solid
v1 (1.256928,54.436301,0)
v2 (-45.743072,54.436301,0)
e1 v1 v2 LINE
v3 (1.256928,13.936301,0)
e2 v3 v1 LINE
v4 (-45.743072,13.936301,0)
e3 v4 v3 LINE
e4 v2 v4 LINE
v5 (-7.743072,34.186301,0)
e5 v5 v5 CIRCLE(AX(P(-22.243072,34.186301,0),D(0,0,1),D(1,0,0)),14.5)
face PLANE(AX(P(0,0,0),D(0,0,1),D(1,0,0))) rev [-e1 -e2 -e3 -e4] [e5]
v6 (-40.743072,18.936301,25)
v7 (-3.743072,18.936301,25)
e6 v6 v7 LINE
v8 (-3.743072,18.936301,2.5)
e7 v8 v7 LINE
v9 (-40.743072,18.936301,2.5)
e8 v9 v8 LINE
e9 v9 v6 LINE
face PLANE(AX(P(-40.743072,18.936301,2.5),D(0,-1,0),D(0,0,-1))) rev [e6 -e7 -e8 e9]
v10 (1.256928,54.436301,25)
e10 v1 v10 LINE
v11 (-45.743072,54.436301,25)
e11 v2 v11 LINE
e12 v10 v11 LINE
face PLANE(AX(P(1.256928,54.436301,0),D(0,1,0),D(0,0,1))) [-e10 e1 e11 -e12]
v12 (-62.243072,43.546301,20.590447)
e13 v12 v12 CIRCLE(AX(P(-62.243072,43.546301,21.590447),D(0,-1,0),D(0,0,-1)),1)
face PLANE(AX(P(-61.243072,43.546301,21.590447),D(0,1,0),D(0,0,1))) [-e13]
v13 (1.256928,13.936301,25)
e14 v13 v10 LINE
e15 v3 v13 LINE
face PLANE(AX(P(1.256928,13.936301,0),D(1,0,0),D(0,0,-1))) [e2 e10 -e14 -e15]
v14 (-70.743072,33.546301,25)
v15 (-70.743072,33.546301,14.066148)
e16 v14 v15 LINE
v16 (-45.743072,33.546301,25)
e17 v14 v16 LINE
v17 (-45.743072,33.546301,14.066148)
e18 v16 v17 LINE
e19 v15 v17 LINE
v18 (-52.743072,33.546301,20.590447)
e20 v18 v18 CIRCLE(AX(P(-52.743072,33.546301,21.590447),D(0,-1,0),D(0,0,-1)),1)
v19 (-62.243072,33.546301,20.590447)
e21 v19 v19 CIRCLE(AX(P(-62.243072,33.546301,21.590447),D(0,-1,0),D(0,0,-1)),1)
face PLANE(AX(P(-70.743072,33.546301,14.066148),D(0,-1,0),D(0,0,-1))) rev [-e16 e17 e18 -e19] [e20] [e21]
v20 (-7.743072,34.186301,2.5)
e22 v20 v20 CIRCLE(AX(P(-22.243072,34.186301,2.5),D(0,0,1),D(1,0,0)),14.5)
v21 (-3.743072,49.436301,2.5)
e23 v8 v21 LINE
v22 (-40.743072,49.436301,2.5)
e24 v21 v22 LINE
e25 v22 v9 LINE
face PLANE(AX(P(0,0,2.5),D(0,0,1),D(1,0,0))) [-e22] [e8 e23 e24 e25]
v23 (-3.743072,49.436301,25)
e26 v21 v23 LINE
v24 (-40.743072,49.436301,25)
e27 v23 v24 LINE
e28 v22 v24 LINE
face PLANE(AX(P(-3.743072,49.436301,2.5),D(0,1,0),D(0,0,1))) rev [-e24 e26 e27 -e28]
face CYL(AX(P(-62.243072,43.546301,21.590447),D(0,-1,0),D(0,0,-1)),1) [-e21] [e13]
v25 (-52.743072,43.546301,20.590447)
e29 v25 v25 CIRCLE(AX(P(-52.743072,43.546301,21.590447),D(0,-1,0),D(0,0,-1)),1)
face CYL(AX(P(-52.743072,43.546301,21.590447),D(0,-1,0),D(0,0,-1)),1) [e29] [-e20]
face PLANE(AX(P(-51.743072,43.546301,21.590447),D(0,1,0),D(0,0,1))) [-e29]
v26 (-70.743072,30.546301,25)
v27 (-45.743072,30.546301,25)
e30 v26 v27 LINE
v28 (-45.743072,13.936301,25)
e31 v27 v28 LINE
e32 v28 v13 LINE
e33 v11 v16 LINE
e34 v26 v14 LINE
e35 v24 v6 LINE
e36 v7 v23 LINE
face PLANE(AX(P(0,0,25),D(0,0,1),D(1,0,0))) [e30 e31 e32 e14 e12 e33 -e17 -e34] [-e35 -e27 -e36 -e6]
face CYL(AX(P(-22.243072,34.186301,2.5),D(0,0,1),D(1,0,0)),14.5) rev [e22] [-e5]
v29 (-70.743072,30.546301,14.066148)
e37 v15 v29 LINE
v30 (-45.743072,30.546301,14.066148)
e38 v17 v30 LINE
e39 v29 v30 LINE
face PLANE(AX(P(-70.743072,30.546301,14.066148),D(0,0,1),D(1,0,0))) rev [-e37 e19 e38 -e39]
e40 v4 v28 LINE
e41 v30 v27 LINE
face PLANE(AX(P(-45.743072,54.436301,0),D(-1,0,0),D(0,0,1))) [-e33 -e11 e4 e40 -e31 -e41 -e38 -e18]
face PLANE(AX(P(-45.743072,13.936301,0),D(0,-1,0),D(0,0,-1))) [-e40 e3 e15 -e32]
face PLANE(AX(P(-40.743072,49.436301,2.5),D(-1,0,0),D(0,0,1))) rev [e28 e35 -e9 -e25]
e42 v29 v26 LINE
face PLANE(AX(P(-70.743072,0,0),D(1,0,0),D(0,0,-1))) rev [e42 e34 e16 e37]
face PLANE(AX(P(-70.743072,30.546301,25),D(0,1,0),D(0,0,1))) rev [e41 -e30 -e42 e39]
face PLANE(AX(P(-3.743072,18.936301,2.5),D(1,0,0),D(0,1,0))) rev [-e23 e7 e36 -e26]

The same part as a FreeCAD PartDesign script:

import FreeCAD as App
import Part
import Sketcher
from FreeCAD import Vector
Q = App.Units.Quantity

doc = App.newDocument("Part")
body = doc.addObject("PartDesign::Body", "Body")

# Sketch on XY plane
sketch1 = body.newObject("Sketcher::SketchObject", "Sketch")
sketch1.AttachmentSupport = (doc.getObject("XY_Plane"), [""])
sketch1.MapMode = "FlatFace"
sketch1.AttachmentOffset = App.Placement(Vector(0, 0, 25), App.Rotation())
sketch1.addGeometry(Part.LineSegment(Vector(-46, 54, 0), Vector(-46, 14, 0)), False)
sketch1.addGeometry(Part.LineSegment(Vector(-46, 14, 0), Vector(1, 14, 0)), False)
sketch1.addGeometry(Part.LineSegment(Vector(1, 14, 0), Vector(1, 54, 0)), False)
sketch1.addGeometry(Part.LineSegment(Vector(1, 54, 0), Vector(-46, 54, 0)), False)
sketch1.addConstraint(Sketcher.Constraint("Coincident", 0, 2, 1, 1))
sketch1.addConstraint(Sketcher.Constraint("Coincident", 1, 2, 2, 1))
sketch1.addConstraint(Sketcher.Constraint("Coincident", 2, 2, 3, 1))
sketch1.addConstraint(Sketcher.Constraint("Coincident", 3, 2, 0, 1))
sketch1.addConstraint(Sketcher.Constraint("Vertical", 0))
sketch1.addConstraint(Sketcher.Constraint("Horizontal", 1))
sketch1.addConstraint(Sketcher.Constraint("Vertical", 2))
sketch1.addConstraint(Sketcher.Constraint("Horizontal", 3))
sketch1.addConstraint(Sketcher.Constraint("DistanceX", 1, 1, 1, 2, Q("47 mm")))
sketch1.addConstraint(Sketcher.Constraint("DistanceY", 0, 2, 0, 1, Q("40.5 mm")))
sketch1.addConstraint(Sketcher.Constraint("DistanceY", -1, 1, 0, 2, Q("13.936301 mm")))
sketch1.addConstraint(Sketcher.Constraint("DistanceX", 0, 2, -1, 1, Q("45.743072 mm")))
pad1 = body.newObject("PartDesign::Pad", "Pad")
pad1.Profile = sketch1
pad1.Length = 25
pad1.Reversed = True

# Sketch on YZ plane
sketch2 = body.newObject("Sketcher::SketchObject", "Sketch001")
sketch2.AttachmentSupport = (doc.getObject("YZ_Plane"), [""])
sketch2.MapMode = "FlatFace"
sketch2.AttachmentOffset = App.Placement(Vector(0, 0, -45.743072), App.Rotation())
sketch2.addGeometry(Part.LineSegment(Vector(33.5, 14.1, 0), Vector(30.5, 14.1, 0)), False)
sketch2.addGeometry(Part.LineSegment(Vector(30.5, 14.1, 0), Vector(30.5, 25, 0)), False)
sketch2.addGeometry(Part.LineSegment(Vector(30.5, 25, 0), Vector(33.5, 25, 0)), False)
sketch2.addGeometry(Part.LineSegment(Vector(33.5, 25, 0), Vector(33.5, 14.1, 0)), False)
sketch2.addConstraint(Sketcher.Constraint("Coincident", 0, 2, 1, 1))
sketch2.addConstraint(Sketcher.Constraint("Coincident", 1, 2, 2, 1))
sketch2.addConstraint(Sketcher.Constraint("Coincident", 2, 2, 3, 1))
sketch2.addConstraint(Sketcher.Constraint("Coincident", 3, 2, 0, 1))
sketch2.addConstraint(Sketcher.Constraint("Horizontal", 0))
sketch2.addConstraint(Sketcher.Constraint("Vertical", 1))
sketch2.addConstraint(Sketcher.Constraint("Horizontal", 2))
sketch2.addConstraint(Sketcher.Constraint("Vertical", 3))
sketch2.addConstraint(Sketcher.Constraint("DistanceX", 0, 2, 0, 1, Q("3 mm")))
sketch2.addConstraint(Sketcher.Constraint("DistanceY", -1, 1, 1, 2, Q("25 mm")))
sketch2.addConstraint(Sketcher.Constraint("DistanceY", 1, 1, 1, 2, Q("10.933852 mm")))
sketch2.addConstraint(Sketcher.Constraint("DistanceX", -1, 1, 0, 2, Q("30.546301 mm")))
pad2 = body.newObject("PartDesign::Pad", "Pad001")
pad2.Profile = sketch2
pad2.Length = 25
pad2.Reversed = True

# Sketch on XY plane
sketch3 = body.newObject("Sketcher::SketchObject", "Sketch002")
sketch3.AttachmentSupport = (doc.getObject("XY_Plane"), [""])
sketch3.MapMode = "FlatFace"
sketch3.AttachmentOffset = App.Placement(Vector(0, 0, 25), App.Rotation())
sketch3.addGeometry(Part.LineSegment(Vector(-41, 49, 0), Vector(-41, 19, 0)), False)
sketch3.addGeometry(Part.LineSegment(Vector(-41, 19, 0), Vector(-4, 19, 0)), False)
sketch3.addGeometry(Part.LineSegment(Vector(-4, 19, 0), Vector(-4, 49, 0)), False)
sketch3.addGeometry(Part.LineSegment(Vector(-4, 49, 0), Vector(-41, 49, 0)), False)
sketch3.addConstraint(Sketcher.Constraint("Coincident", 0, 2, 1, 1))
sketch3.addConstraint(Sketcher.Constraint("Coincident", 1, 2, 2, 1))
sketch3.addConstraint(Sketcher.Constraint("Coincident", 2, 2, 3, 1))
sketch3.addConstraint(Sketcher.Constraint("Coincident", 3, 2, 0, 1))
sketch3.addConstraint(Sketcher.Constraint("Vertical", 0))
sketch3.addConstraint(Sketcher.Constraint("Horizontal", 1))
sketch3.addConstraint(Sketcher.Constraint("Vertical", 2))
sketch3.addConstraint(Sketcher.Constraint("Horizontal", 3))
sketch3.addConstraint(Sketcher.Constraint("DistanceX", 1, 1, 1, 2, Q("37 mm")))
sketch3.addConstraint(Sketcher.Constraint("DistanceY", 0, 2, 0, 1, Q("30.5 mm")))
sketch3.addConstraint(Sketcher.Constraint("DistanceY", -1, 1, 0, 2, Q("18.936301 mm")))
sketch3.addConstraint(Sketcher.Constraint("DistanceX", 0, 2, -1, 1, Q("40.743072 mm")))
pocket1 = body.newObject("PartDesign::Pocket", "Pocket")
pocket1.Profile = sketch3
pocket1.Length = 22.5

# Sketch on XY plane
sketch4 = body.newObject("Sketcher::SketchObject", "Sketch003")
sketch4.AttachmentSupport = (doc.getObject("XY_Plane"), [""])
sketch4.MapMode = "FlatFace"
sketch4.AttachmentOffset = App.Placement(Vector(0, 0, 21.590447), App.Rotation())
sketch4.addGeometry(Part.LineSegment(Vector(-52.7, 43.5, 0), Vector(-52.7, 33.5, 0)), False)
sketch4.addGeometry(Part.LineSegment(Vector(-52.7, 33.5, 0), Vector(-51.7, 33.5, 0)), False)
sketch4.addGeometry(Part.LineSegment(Vector(-51.7, 33.5, 0), Vector(-51.7, 43.5, 0)), False)
sketch4.addGeometry(Part.LineSegment(Vector(-51.7, 43.5, 0), Vector(-52.7, 43.5, 0)), False)
sketch4.addGeometry(Part.LineSegment(Vector(-52.7, 43.5, 0), Vector(-52.7, 33.5, 0)), True)  # axis
sketch4.addConstraint(Sketcher.Constraint("Coincident", 0, 2, 1, 1))
sketch4.addConstraint(Sketcher.Constraint("Coincident", 1, 2, 2, 1))
sketch4.addConstraint(Sketcher.Constraint("Coincident", 2, 2, 3, 1))
sketch4.addConstraint(Sketcher.Constraint("Coincident", 3, 2, 0, 1))
sketch4.addConstraint(Sketcher.Constraint("Vertical", 0))
sketch4.addConstraint(Sketcher.Constraint("Horizontal", 1))
sketch4.addConstraint(Sketcher.Constraint("Vertical", 2))
sketch4.addConstraint(Sketcher.Constraint("Horizontal", 3))
sketch4.addConstraint(Sketcher.Constraint("Vertical", 4))
sketch4.addConstraint(Sketcher.Constraint("Coincident", 4, 1, 3, 2))
sketch4.addConstraint(Sketcher.Constraint("Horizontal", 1, 2, 4, 2))
sketch4.addConstraint(Sketcher.Constraint("DistanceX", 1, 1, 1, 2, Q("1 mm")))
sketch4.addConstraint(Sketcher.Constraint("DistanceY", 0, 2, 0, 1, Q("10 mm")))
sketch4.addConstraint(Sketcher.Constraint("DistanceY", -1, 1, 0, 2, Q("33.546301 mm")))
sketch4.addConstraint(Sketcher.Constraint("DistanceX", 0, 2, -1, 1, Q("52.743072 mm")))
revolution = body.newObject("PartDesign::Revolution", "Revolution")
revolution.Profile = sketch4
revolution.ReferenceAxis = (sketch4, ["Axis0"])
revolution.Angle = 360

# Sketch on XY plane
sketch5 = body.newObject("Sketcher::SketchObject", "Sketch004")
sketch5.AttachmentSupport = (doc.getObject("XY_Plane"), [""])
sketch5.MapMode = "FlatFace"
sketch5.AttachmentOffset = App.Placement(Vector(0, 0, 21.590447), App.Rotation())
sketch5.addGeometry(Part.LineSegment(Vector(-62.2, 43.5, 0), Vector(-62.2, 33.5, 0)), False)
sketch5.addGeometry(Part.LineSegment(Vector(-62.2, 33.5, 0), Vector(-61.2, 33.5, 0)), False)
sketch5.addGeometry(Part.LineSegment(Vector(-61.2, 33.5, 0), Vector(-61.2, 43.5, 0)), False)
sketch5.addGeometry(Part.LineSegment(Vector(-61.2, 43.5, 0), Vector(-62.2, 43.5, 0)), False)
sketch5.addGeometry(Part.LineSegment(Vector(-62.2, 43.5, 0), Vector(-62.2, 33.5, 0)), True)  # axis
sketch5.addConstraint(Sketcher.Constraint("Coincident", 0, 2, 1, 1))
sketch5.addConstraint(Sketcher.Constraint("Coincident", 1, 2, 2, 1))
sketch5.addConstraint(Sketcher.Constraint("Coincident", 2, 2, 3, 1))
sketch5.addConstraint(Sketcher.Constraint("Coincident", 3, 2, 0, 1))
sketch5.addConstraint(Sketcher.Constraint("Vertical", 0))
sketch5.addConstraint(Sketcher.Constraint("Horizontal", 1))
sketch5.addConstraint(Sketcher.Constraint("Vertical", 2))
sketch5.addConstraint(Sketcher.Constraint("Horizontal", 3))
sketch5.addConstraint(Sketcher.Constraint("Vertical", 4))
sketch5.addConstraint(Sketcher.Constraint("Coincident", 4, 1, 3, 2))
sketch5.addConstraint(Sketcher.Constraint("Horizontal", 1, 2, 4, 2))
sketch5.addConstraint(Sketcher.Constraint("DistanceX", 1, 1, 1, 2, Q("1 mm")))
sketch5.addConstraint(Sketcher.Constraint("DistanceY", 0, 2, 0, 1, Q("10 mm")))
sketch5.addConstraint(Sketcher.Constraint("DistanceY", -1, 1, 0, 2, Q("33.546301 mm")))
sketch5.addConstraint(Sketcher.Constraint("DistanceX", 0, 2, -1, 1, Q("62.243072 mm")))
revolution2 = body.newObject("PartDesign::Revolution", "Revolution001")
revolution2.Profile = sketch5
revolution2.ReferenceAxis = (sketch5, ["Axis0"])
revolution2.Angle = 360

# Sketch on XY plane
sketch6 = body.newObject("Sketcher::SketchObject", "Sketch005")
sketch6.AttachmentSupport = (doc.getObject("XY_Plane"), [""])
sketch6.MapMode = "FlatFace"
sketch6.AttachmentOffset = App.Placement(Vector(0, 0, 2.5), App.Rotation())
sketch6.addGeometry(Part.Circle(Vector(-22, 34, 0), Vector(0, 0, 1), 14), False)
sketch6.addConstraint(Sketcher.Constraint("Diameter", 0, Q("29 mm")))
sketch6.addConstraint(Sketcher.Constraint("DistanceY", -1, 1, 0, 3, Q("34.186301 mm")))
sketch6.addConstraint(Sketcher.Constraint("DistanceX", 0, 3, -1, 1, Q("22.243072 mm")))
doc.recompute()
hole = body.newObject("PartDesign::Hole", "Hole")
hole.Profile = sketch6
hole.ThreadType = "None"
hole.Diameter = 29
hole.DepthType = "ThroughAll"

doc.recompute()
